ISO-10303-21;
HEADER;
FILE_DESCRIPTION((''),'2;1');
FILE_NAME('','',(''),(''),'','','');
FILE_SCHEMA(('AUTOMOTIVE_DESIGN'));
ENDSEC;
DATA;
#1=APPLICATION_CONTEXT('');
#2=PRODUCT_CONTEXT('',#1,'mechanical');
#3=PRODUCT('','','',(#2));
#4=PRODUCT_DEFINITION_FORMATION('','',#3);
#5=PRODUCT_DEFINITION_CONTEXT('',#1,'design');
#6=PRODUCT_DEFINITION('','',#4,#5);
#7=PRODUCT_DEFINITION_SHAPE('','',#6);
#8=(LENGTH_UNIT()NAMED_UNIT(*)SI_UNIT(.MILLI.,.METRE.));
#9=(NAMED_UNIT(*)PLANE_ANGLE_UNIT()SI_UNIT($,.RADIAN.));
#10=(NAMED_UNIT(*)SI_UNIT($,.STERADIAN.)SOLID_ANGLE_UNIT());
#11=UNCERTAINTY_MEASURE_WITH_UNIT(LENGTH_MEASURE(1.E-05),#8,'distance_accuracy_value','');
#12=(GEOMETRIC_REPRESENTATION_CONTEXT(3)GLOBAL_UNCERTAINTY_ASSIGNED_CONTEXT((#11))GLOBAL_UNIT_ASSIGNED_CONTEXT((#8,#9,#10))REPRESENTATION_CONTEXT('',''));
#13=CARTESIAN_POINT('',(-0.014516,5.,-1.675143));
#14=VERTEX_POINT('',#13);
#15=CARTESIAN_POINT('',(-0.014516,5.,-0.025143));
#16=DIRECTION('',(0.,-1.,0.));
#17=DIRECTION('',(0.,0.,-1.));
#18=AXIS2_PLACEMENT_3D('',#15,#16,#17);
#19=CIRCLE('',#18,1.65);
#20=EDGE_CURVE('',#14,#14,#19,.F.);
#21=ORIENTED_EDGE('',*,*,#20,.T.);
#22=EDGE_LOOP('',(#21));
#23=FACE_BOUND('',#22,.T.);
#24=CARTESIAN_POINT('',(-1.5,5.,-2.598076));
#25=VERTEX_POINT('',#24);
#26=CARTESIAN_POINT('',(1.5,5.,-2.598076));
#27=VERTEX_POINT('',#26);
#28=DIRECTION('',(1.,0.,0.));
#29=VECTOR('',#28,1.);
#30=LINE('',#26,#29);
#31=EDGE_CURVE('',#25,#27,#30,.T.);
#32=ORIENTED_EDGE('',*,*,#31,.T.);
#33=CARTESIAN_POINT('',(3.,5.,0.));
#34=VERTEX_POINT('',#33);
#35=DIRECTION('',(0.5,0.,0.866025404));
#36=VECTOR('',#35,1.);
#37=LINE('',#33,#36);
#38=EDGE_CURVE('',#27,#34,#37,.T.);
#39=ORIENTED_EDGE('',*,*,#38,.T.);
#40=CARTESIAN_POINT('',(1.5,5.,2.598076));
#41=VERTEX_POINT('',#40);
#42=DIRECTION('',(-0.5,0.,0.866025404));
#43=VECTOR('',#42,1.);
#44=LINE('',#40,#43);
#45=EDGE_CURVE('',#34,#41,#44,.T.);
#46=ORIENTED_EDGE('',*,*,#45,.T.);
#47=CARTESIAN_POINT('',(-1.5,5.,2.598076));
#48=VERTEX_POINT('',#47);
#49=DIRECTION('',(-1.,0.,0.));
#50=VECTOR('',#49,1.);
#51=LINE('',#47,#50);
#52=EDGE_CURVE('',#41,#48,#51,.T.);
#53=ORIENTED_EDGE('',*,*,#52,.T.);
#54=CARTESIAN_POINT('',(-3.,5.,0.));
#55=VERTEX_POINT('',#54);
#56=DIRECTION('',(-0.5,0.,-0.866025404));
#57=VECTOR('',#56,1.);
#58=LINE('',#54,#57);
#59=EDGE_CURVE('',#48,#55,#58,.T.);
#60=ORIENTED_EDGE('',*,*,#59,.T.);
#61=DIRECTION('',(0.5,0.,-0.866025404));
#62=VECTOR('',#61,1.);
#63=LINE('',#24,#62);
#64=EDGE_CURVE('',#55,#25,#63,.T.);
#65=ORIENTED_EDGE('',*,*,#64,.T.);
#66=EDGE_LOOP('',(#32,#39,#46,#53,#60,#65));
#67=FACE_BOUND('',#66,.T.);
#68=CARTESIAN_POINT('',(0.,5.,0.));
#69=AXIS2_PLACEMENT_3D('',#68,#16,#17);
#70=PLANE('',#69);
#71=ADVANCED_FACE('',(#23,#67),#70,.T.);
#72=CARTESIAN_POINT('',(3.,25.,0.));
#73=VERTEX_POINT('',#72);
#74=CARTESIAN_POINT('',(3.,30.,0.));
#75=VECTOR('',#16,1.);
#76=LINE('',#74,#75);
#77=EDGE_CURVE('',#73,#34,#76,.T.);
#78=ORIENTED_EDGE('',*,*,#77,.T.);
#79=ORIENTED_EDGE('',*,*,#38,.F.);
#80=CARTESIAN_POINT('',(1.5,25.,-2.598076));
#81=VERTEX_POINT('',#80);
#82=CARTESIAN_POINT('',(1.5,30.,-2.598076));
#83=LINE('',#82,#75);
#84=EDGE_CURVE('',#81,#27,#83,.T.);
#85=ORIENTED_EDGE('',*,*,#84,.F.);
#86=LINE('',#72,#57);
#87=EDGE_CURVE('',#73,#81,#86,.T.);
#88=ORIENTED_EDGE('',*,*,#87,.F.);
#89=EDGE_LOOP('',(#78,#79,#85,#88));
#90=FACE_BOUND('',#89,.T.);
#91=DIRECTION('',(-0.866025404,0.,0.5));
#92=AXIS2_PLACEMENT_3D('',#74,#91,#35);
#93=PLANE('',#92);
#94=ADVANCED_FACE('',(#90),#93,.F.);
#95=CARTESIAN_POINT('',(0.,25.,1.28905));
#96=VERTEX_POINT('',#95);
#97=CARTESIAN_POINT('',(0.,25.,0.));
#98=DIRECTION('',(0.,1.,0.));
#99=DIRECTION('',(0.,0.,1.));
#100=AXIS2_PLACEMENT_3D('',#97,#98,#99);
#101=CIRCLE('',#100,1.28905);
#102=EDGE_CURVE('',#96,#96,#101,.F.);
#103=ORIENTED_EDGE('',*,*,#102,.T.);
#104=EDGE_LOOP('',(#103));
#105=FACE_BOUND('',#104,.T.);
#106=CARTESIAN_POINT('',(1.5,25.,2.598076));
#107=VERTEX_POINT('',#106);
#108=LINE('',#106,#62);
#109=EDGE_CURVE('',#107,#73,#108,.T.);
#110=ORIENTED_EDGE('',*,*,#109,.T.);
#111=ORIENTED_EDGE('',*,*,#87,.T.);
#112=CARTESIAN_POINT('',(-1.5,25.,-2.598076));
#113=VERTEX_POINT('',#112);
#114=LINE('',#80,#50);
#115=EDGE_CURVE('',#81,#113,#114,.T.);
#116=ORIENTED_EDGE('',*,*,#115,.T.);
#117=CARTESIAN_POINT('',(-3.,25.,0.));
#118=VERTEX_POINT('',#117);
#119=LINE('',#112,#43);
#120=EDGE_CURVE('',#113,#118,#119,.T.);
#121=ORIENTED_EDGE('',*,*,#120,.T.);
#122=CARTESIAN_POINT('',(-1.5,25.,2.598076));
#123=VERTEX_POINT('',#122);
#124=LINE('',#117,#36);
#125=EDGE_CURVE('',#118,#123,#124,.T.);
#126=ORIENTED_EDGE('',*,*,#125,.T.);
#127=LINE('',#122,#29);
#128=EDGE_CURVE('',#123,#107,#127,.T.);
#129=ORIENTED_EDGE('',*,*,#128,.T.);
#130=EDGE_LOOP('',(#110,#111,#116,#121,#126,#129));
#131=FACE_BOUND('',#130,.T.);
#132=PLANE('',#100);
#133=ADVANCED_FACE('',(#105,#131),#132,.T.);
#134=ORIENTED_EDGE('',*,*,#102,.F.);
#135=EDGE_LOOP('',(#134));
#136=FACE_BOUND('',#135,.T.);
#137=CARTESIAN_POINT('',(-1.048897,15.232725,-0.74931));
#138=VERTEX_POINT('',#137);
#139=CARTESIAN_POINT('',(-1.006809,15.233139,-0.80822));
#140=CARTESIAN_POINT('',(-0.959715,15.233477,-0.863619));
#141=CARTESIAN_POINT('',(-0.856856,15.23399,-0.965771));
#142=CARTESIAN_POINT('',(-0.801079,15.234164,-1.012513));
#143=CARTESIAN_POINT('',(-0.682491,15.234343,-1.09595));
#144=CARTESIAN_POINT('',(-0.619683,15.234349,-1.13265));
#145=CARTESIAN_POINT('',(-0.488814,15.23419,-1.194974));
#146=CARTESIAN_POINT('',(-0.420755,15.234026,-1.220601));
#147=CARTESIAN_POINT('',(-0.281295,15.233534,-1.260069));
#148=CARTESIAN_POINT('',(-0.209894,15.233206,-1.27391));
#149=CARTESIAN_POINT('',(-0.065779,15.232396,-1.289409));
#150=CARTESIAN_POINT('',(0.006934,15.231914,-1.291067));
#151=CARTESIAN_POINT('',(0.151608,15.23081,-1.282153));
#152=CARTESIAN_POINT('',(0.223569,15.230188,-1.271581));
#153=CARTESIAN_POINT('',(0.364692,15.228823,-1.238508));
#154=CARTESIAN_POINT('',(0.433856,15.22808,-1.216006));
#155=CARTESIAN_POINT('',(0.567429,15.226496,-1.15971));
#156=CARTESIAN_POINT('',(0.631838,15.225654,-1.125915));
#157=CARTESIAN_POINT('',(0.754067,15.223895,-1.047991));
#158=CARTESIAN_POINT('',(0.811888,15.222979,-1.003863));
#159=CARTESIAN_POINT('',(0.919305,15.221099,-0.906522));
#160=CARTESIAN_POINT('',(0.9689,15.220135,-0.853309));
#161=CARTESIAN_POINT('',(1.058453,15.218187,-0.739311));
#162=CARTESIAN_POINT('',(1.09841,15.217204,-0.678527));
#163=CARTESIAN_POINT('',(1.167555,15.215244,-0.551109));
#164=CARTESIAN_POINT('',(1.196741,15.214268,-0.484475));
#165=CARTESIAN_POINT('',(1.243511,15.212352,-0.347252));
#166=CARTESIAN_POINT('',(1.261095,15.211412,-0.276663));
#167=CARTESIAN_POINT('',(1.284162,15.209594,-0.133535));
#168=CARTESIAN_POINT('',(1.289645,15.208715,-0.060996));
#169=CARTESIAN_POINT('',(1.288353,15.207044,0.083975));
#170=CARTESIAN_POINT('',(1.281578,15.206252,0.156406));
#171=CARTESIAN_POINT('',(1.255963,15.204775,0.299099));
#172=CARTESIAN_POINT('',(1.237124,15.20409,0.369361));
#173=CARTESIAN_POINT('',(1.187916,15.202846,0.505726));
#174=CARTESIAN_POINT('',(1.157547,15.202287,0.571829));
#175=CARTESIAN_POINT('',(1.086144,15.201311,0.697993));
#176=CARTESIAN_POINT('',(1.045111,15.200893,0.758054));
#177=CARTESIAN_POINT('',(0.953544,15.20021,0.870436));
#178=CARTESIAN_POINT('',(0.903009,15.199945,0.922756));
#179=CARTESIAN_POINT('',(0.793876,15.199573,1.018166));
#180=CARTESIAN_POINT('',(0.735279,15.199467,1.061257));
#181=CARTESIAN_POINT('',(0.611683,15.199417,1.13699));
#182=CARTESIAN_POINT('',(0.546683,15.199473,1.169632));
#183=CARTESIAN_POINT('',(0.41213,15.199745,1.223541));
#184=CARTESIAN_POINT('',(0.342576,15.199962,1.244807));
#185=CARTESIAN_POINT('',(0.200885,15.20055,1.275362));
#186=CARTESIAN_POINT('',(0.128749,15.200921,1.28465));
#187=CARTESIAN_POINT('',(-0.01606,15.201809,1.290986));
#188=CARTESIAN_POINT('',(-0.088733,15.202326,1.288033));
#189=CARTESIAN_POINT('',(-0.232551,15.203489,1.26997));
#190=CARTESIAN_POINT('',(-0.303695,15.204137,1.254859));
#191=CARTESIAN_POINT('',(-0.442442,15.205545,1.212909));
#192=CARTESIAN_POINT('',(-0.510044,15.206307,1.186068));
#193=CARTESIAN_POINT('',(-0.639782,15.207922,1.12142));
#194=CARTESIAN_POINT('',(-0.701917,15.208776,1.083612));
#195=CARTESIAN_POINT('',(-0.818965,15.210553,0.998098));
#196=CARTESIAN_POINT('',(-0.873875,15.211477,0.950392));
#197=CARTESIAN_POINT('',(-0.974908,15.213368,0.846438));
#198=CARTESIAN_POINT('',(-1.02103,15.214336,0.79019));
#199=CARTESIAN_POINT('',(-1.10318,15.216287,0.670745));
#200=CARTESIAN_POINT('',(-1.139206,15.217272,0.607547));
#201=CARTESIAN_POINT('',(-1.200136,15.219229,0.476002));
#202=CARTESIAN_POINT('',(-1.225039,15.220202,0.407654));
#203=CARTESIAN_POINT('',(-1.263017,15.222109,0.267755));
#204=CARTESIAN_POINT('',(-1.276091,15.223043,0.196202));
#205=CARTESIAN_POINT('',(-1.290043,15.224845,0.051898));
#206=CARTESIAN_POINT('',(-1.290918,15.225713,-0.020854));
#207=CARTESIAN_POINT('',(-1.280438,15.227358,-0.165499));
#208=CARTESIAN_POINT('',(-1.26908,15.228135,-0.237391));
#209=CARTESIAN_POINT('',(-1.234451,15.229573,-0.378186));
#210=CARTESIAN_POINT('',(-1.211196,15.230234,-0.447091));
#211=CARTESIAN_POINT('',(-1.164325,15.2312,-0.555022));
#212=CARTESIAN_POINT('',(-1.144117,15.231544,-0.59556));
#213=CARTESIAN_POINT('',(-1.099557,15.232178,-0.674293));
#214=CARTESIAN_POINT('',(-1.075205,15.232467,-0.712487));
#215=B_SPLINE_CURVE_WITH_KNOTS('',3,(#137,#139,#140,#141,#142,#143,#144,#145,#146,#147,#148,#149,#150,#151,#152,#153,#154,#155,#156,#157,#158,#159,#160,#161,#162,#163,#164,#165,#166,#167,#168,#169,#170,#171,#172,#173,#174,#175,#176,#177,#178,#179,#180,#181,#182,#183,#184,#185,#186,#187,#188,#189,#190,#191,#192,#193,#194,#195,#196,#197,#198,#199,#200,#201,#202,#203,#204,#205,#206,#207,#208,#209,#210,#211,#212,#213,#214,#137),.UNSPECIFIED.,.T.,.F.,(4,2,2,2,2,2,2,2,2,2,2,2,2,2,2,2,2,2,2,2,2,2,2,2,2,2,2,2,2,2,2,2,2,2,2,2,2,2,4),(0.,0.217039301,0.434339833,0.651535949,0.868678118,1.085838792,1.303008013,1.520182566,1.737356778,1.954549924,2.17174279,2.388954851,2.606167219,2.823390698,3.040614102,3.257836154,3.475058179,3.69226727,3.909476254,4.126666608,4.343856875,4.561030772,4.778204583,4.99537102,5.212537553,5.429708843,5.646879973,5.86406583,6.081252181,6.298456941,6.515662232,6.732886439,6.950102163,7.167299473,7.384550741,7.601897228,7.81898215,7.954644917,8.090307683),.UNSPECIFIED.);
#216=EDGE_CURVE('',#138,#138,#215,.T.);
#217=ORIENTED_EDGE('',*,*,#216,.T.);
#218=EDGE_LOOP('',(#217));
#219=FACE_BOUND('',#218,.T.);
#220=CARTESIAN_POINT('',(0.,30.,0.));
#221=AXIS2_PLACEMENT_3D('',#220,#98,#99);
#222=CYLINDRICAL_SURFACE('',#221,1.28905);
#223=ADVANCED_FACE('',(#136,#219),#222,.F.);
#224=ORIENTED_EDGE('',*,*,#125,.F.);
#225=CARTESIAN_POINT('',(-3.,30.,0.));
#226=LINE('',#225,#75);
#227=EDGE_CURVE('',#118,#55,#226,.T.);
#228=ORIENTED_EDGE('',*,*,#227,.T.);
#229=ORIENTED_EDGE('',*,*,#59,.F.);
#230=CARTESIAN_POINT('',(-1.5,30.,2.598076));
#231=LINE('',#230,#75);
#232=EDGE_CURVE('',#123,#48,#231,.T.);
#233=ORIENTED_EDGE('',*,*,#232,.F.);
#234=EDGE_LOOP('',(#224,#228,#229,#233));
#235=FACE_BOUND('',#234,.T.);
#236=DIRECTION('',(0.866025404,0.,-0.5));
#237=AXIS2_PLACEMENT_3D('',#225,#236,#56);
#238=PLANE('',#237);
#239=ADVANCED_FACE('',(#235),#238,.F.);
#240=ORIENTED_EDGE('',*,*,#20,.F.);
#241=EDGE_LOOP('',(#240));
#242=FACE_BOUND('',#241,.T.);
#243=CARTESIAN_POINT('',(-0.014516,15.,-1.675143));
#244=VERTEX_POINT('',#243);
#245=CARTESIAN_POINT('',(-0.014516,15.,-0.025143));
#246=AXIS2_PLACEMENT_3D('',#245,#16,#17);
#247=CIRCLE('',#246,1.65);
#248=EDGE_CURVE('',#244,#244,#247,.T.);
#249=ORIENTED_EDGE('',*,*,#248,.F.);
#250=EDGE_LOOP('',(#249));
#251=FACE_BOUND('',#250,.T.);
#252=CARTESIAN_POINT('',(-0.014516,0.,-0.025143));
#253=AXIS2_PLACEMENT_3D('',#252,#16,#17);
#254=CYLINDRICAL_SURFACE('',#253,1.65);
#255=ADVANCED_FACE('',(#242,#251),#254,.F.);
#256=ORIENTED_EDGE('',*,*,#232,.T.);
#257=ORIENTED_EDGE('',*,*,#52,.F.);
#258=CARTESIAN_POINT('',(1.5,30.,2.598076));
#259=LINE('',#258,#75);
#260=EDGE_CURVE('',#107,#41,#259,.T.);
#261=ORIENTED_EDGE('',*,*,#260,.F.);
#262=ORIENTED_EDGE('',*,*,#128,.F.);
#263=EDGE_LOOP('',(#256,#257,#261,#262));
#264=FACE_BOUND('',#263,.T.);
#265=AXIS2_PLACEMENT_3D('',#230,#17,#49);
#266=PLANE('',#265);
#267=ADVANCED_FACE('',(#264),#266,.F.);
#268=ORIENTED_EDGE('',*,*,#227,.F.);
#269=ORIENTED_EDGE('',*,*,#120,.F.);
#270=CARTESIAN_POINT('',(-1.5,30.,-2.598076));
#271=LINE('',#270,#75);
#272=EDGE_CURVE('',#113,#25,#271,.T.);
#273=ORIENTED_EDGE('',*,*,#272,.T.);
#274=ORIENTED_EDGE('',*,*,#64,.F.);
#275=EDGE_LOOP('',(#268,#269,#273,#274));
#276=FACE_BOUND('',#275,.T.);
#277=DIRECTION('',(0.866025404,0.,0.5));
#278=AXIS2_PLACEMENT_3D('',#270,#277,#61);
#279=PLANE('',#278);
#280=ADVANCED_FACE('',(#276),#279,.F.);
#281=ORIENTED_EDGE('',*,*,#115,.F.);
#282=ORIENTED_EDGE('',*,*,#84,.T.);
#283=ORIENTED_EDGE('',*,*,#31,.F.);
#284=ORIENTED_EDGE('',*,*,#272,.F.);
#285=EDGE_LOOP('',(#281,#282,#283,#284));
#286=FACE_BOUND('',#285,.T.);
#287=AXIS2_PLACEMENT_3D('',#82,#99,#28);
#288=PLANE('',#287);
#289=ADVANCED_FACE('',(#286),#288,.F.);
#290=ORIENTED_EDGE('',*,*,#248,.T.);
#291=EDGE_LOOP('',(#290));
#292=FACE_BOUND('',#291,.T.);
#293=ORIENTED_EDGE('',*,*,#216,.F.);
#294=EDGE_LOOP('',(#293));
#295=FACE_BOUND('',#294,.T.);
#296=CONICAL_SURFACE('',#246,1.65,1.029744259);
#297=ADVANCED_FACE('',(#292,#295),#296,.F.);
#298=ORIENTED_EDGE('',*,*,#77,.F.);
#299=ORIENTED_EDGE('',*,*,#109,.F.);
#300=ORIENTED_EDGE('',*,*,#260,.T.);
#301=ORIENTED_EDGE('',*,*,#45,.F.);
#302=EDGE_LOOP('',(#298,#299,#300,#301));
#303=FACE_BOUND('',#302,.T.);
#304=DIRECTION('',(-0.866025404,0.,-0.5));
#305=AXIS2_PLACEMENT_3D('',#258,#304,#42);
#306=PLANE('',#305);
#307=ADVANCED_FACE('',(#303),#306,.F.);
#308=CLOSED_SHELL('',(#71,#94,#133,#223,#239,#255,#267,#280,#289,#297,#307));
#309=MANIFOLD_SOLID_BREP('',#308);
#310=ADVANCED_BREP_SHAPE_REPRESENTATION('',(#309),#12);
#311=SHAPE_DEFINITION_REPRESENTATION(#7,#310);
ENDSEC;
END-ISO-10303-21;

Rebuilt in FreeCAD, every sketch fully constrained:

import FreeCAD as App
import Part
import Sketcher

V = App.Vector
Q = App.Units.Quantity

doc = App.newDocument("Part")
body = doc.addObject("PartDesign::Body", "Body")

# Sketch on XZ plane
sketch1 = body.newObject("Sketcher::SketchObject", "Sketch")
sketch1.AttachmentSupport = (doc.getObject("XZ_Plane"), [""])
sketch1.MapMode = "FlatFace"
sketch1.addGeometry([
    Part.LineSegment(V(3, 0, 0), V(1.5, -2.598076, 0)),  # 0
    Part.LineSegment(V(1.5, -2.598076, 0), V(-1.5, -2.598076, 0)),  # 1
    Part.LineSegment(V(-1.5, -2.598076, 0), V(-3, 0, 0)),  # 2
    Part.LineSegment(V(-3, 0, 0), V(-1.5, 2.598076, 0)),  # 3
    Part.LineSegment(V(-1.5, 2.598076, 0), V(1.5, 2.598076, 0)),  # 4
    Part.LineSegment(V(1.5, 2.598076, 0), V(3, 0, 0)),  # 5
], False)
sketch1.addConstraint([
    Sketcher.Constraint("Coincident", 0, 2, 1, 1),
    Sketcher.Constraint("Coincident", 1, 2, 2, 1),
    Sketcher.Constraint("Coincident", 2, 2, 3, 1),
    Sketcher.Constraint("Coincident", 3, 2, 4, 1),
    Sketcher.Constraint("Coincident", 4, 2, 5, 1),
    Sketcher.Constraint("Coincident", 5, 2, 0, 1),
    Sketcher.Constraint("Horizontal", 1),
    Sketcher.Constraint("Horizontal", 4),
    Sketcher.Constraint("Symmetric", 0, 2, 3, 2, -1, 1),
    Sketcher.Constraint("Symmetric", 2, 2, 5, 2, -1, 1),
    Sketcher.Constraint("PointOnObject", 2, 2, -1),
    Sketcher.Constraint("Parallel", 2, 5),
    Sketcher.Constraint("Vertical", 1, 2, 3, 2),
    Sketcher.Constraint("DistanceX", 1, 2, 1, 1, 3.0),
    Sketcher.Constraint("Angle", 0, Q("-120 deg")),
    Sketcher.Constraint("Distance", 0, 3.0),
])
pad1 = body.newObject("PartDesign::Pad", "Pad")
pad1.Profile = sketch1
pad1.Length = 30
pad1.Reversed = True

# Sketch on XZ plane
sketch2 = body.newObject("Sketcher::SketchObject", "Sketch001")
sketch2.AttachmentSupport = (doc.getObject("XZ_Plane"), [""])
sketch2.MapMode = "FlatFace"
sketch2.AttachmentOffset = App.Placement(V(0, 0, -30), App.Rotation())
sketch2.addGeometry(Part.Circle(V(0, 0, 0), V(0, 0, 1), 1.28905), False)
sketch2.addConstraint([
    Sketcher.Constraint("Coincident", 0, 3, -1, 1),
    Sketcher.Constraint("Diameter", 0, 2.5781),
])
doc.recompute()
hole = body.newObject("PartDesign::Hole", "Hole")
hole.Profile = sketch2
hole.ThreadType = "None"
hole.Diameter = 2.5781
hole.DepthType = "Dimension"
hole.Depth = 15
hole.DrillPoint = "Angled"
hole.DrillPointAngle = 118
hole.HoleCutType = "Countersink"
hole.HoleCutDiameter = 4.445
hole.HoleCutCountersinkAngle = 100
hole.Reversed = True

# Sketch on XZ plane
sketch3 = body.newObject("Sketcher::SketchObject", "Sketch002")
sketch3.AttachmentSupport = (doc.getObject("XZ_Plane"), [""])
sketch3.MapMode = "FlatFace"
sketch3.addGeometry(Part.Circle(V(-0.014516, -0.025143, 0), V(0, 0, 1), 1.65), False)
sketch3.addConstraint([
    Sketcher.Constraint("Diameter", 0, 3.3),
    Sketcher.Constraint("DistanceX", 0, 3, -1, 1, 0.014516),
    Sketcher.Constraint("DistanceY", 0, 3, -1, 1, 0.025143),
])
doc.recompute()
hole2 = body.newObject("PartDesign::Hole", "Hole001")
hole2.Profile = sketch3
hole2.ThreadType = "None"
hole2.Diameter = 3.3
hole2.DepthType = "Dimension"
hole2.Depth = 15
hole2.DrillPoint = "Angled"
hole2.DrillPointAngle = 118

# Sketch on XZ plane
sketch4 = body.newObject("Sketcher::SketchObject", "Sketch003")
sketch4.AttachmentSupport = (doc.getObject("XZ_Plane"), [""])
sketch4.MapMode = "FlatFace"
sketch4.AttachmentOffset = App.Placement(V(0, 0, -30), App.Rotation())
sketch4.addGeometry(Part.Circle(V(0, 0, 0), V(0, 0, 1), 3), False)
sketch4.addConstraint([
    Sketcher.Constraint("Coincident", 0, 3, -1, 1),
    Sketcher.Constraint("Diameter", 0, 6.0),
])
pocket1 = body.newObject("PartDesign::Pocket", "Pocket")
pocket1.Profile = sketch4
pocket1.Length = 5
pocket1.Reversed = True

# Sketch on XZ plane
sketch5 = body.newObject("Sketcher::SketchObject", "Sketch004")
sketch5.AttachmentSupport = (doc.getObject("XZ_Plane"), [""])
sketch5.MapMode = "FlatFace"
sketch5.addGeometry(Part.Circle(V(0, 0, 0), V(0, 0, 1), 3), False)
sketch5.addConstraint([
    Sketcher.Constraint("Coincident", 0, 3, -1, 1),
    Sketcher.Constraint("Diameter", 0, 6.0),
])
pocket2 = body.newObject("PartDesign::Pocket", "Pocket001")
pocket2.Profile = sketch5
pocket2.Length = 5

doc.recompute()
